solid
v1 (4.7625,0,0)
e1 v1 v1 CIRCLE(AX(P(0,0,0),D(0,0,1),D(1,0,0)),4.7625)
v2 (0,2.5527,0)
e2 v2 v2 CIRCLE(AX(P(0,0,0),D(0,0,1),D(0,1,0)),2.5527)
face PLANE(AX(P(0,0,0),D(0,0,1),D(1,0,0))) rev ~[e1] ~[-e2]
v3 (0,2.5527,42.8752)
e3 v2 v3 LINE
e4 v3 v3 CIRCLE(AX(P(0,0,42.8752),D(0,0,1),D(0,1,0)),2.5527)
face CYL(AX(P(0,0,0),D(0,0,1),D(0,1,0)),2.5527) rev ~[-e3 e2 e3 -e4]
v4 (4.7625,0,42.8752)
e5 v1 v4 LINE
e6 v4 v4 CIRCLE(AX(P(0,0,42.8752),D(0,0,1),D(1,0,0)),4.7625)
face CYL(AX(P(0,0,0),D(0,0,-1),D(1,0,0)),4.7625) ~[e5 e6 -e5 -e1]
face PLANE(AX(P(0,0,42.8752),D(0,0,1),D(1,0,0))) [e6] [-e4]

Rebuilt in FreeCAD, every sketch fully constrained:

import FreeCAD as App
import Part
import Sketcher
Q = App.Units.Quantity

doc = App.newDocument("Part")
body = doc.addObject("PartDesign::Body", "Body")

# Sketch on XY plane
sketch1 = body.newObject("Sketcher::SketchObject", "Sketch")
sketch1.AttachmentSupport = (doc.getObject("XY_Plane"), [""])
sketch1.MapMode = "FlatFace"
sketch1.addGeometry(Part.Circle(App.Vector(0, 0, 0), App.Vector(0, 0, 1), 4.7625), False)
sketch1.addConstraint([
    Sketcher.Constraint("Coincident", 0, 3, -1, 1),
    Sketcher.Constraint("Diameter", 0, Q("0.375 in")),
])
pad1 = body.newObject("PartDesign::Pad", "Pad")
pad1.Profile = sketch1
pad1.Length = Q("1.688 in")

# Sketch on XY plane
sketch2 = body.newObject("Sketcher::SketchObject", "Sketch001")
sketch2.AttachmentSupport = (doc.getObject("XY_Plane"), [""])
sketch2.MapMode = "FlatFace"
sketch2.addGeometry(Part.Circle(App.Vector(0, 0, 0), App.Vector(0, 0, 1), 2.5527), False)
sketch2.addConstraint([
    Sketcher.Constraint("Coincident", 0, 3, -1, 1),
    Sketcher.Constraint("Diameter", 0, Q("0.201 in")),
])
doc.recompute()
hole = body.newObject("PartDesign::Hole", "Hole")
hole.Profile = sketch2
hole.ThreadType = "None"
hole.Diameter = Q("0.201 in")
hole.DepthType = "ThroughAll"
hole.Reversed = True

doc.recompute()
